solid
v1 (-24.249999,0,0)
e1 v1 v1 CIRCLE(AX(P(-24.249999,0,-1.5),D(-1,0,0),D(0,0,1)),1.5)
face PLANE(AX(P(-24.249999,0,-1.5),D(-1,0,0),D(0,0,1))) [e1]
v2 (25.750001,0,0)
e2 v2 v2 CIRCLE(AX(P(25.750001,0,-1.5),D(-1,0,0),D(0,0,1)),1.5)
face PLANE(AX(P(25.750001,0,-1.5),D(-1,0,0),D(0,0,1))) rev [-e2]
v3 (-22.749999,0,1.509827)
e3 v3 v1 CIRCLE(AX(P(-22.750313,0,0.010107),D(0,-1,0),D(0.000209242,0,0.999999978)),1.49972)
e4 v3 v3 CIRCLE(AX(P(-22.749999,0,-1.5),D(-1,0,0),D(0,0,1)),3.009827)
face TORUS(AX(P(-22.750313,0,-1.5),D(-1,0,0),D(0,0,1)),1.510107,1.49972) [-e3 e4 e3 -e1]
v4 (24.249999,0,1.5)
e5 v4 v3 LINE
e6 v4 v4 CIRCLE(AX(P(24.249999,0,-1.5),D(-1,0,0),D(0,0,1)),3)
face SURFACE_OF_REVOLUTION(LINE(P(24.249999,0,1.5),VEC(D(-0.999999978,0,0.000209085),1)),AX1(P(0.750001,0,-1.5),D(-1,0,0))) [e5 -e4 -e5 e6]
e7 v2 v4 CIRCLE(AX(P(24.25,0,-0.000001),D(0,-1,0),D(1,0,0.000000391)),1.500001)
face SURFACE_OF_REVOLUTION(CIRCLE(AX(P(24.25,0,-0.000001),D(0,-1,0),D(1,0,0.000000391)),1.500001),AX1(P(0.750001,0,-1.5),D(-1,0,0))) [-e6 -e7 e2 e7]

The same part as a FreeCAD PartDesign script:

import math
import FreeCAD as App
import Part
import Sketcher
Q = App.Units.Quantity

doc = App.newDocument("Part")
body = doc.addObject("PartDesign::Body", "Body")

# Sketch on XZ plane
sketch1 = body.newObject("Sketcher::SketchObject", "Sketch")
sketch1.AttachmentSupport = (doc.getObject("XZ_Plane"), [""])
sketch1.MapMode = "FlatFace"
sketch1.addGeometry([
    Part.LineSegment(App.Vector(-24.249999, -1.5, 0), App.Vector(25.750001, -1.5, 0)),  # 0
    Part.LineSegment(App.Vector(25.750001, -1.5, 0), App.Vector(25.750001, 0, 0)),  # 1
    Part.ArcOfCircle(Part.Circle(App.Vector(24.25, -0.000001, 0), App.Vector(0, 0, 1), 1.500001), math.radians(0.000022), math.radians(90.000054)),  # 2
    Part.LineSegment(App.Vector(24.249999, 1.5, 0), App.Vector(-22.749999, 1.509827, 0)),  # 3
    Part.ArcOfCircle(Part.Circle(App.Vector(-22.750313, 0.010107, 0), App.Vector(0, 0, 1), 1.49972), math.radians(89.988011), math.radians(180.386126)),  # 4
    Part.LineSegment(App.Vector(-24.249999, 0, 0), App.Vector(-24.249999, -1.5, 0)),  # 5
], False)
sketch1.addGeometry(Part.LineSegment(App.Vector(25.750001, -1.5, 0), App.Vector(-24.249999, -1.5, 0)), True)  # axis
sketch1.addConstraint([
    Sketcher.Constraint("Coincident", 0, 2, 1, 1),
    Sketcher.Constraint("Coincident", 1, 2, 2, 1),
    Sketcher.Constraint("Coincident", 2, 2, 3, 1),
    Sketcher.Constraint("Coincident", 3, 2, 4, 1),
    Sketcher.Constraint("Coincident", 4, 2, 5, 1),
    Sketcher.Constraint("Coincident", 5, 2, 0, 1),
    Sketcher.Constraint("Horizontal", 0),
    Sketcher.Constraint("Vertical", 1),
    Sketcher.Constraint("Vertical", 5),
    Sketcher.Constraint("Horizontal", 6),
    Sketcher.Constraint("Coincident", 6, 1, 0, 2),
    Sketcher.Constraint("PointOnObject", 2, 3, -1),
    Sketcher.Constraint("PointOnObject", 1, 2, -1),
    Sketcher.Constraint("PointOnObject", 4, 2, -1),
    Sketcher.Constraint("Radius", 2, Q("1.500001 mm")),
    Sketcher.Constraint("DistanceX", 0, 1, 0, 2, Q("50 mm")),
    Sketcher.Constraint("DistanceX", 6, 2, 6, 1, Q("50 mm")),
    Sketcher.Constraint("Distance", 3, Q("46.999999 mm")),
    Sketcher.Constraint("DistanceY", 1, 1, 1, 2, Q("1.5 mm")),
    Sketcher.Constraint("DistanceX", 3, 2, 2, 3, Q("46.999999 mm")),
    Sketcher.Constraint("DistanceX", -1, 1, 2, 3, Q("24.25 mm")),
    Sketcher.Constraint("Radius", 4, Q("1.49972 mm")),
    Sketcher.Constraint("DistanceX", 4, 3, 2, 2, Q("47.000312 mm")),
])
revolution = body.newObject("PartDesign::Revolution", "Revolution")
revolution.Profile = sketch1
revolution.ReferenceAxis = (sketch1, ["Axis0"])
revolution.Angle = 360

doc.recompute()
